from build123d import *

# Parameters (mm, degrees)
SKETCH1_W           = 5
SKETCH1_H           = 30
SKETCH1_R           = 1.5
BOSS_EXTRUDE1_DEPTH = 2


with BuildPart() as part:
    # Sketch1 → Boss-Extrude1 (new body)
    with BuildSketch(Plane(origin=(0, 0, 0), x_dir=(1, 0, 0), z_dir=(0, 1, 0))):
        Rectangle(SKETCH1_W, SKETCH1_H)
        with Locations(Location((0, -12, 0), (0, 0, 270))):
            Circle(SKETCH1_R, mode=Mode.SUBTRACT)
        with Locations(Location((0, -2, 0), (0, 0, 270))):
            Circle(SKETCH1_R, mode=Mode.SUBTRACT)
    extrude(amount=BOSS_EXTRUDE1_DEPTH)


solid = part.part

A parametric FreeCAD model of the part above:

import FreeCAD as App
import Part
import Sketcher
from FreeCAD import Vector
Q = App.Units.Quantity

doc = App.newDocument("Part")
body = doc.addObject("PartDesign::Body", "Body")

# Sketch on XZ plane
sketch1 = doc.addObject("Sketcher::SketchObject", "Sketch")
body.addObject(sketch1)
sketch1.AttachmentSupport = (doc.XZ_Plane, [""])
sketch1.MapMode = "FlatFace"
sketch1.addGeometry([
    Part.LineSegment(Vector(-2.5, -15, 0), Vector(-2.5, 15, 0)),  # 0
    Part.LineSegment(Vector(-2.5, 15, 0), Vector(2.5, 15, 0)),  # 1
    Part.LineSegment(Vector(2.5, 15, 0), Vector(2.5, -15, 0)),  # 2
    Part.LineSegment(Vector(2.5, -15, 0), Vector(-2.5, -15, 0)),  # 3
    Part.Circle(Vector(0, 12, 0), Vector(0, 0, 1), 1.5),  # 4
    Part.Circle(Vector(0, 2, 0), Vector(0, 0, 1), 1.5),  # 5
], False)
sketch1.addConstraint([
    Sketcher.Constraint("Coincident", 0, 2, 1, 1),
    Sketcher.Constraint("Coincident", 1, 2, 2, 1),
    Sketcher.Constraint("Coincident", 2, 2, 3, 1),
    Sketcher.Constraint("Coincident", 3, 2, 0, 1),
    Sketcher.Constraint("Vertical", 0),
    Sketcher.Constraint("Horizontal", 1),
    Sketcher.Constraint("Vertical", 2),
    Sketcher.Constraint("Horizontal", 3),
    Sketcher.Constraint("Equal", 4, 5),
    Sketcher.Constraint("Symmetric", 0, 2, 2, 2, -1, 1),
    Sketcher.Constraint("PointOnObject", 4, 3, -2),
    Sketcher.Constraint("PointOnObject", 5, 3, -2),
    Sketcher.Constraint("Diameter", 4, Q("3 mm")),
    Sketcher.Constraint("DistanceX", 1, 1, 1, 2, Q("5 mm")),
    Sketcher.Constraint("DistanceY", 0, 1, 0, 2, Q("30 mm")),
    Sketcher.Constraint("DistanceY", -1, 1, 4, 3, Q("12 mm")),
    Sketcher.Constraint("DistanceY", -1, 1, 5, 3, Q("2 mm")),
])
pad1 = doc.addObject("PartDesign::Pad", "Pad")
body.addObject(pad1)
pad1.Profile = sketch1
pad1.Length = 2
pad1.Reversed = True

doc.recompute()
